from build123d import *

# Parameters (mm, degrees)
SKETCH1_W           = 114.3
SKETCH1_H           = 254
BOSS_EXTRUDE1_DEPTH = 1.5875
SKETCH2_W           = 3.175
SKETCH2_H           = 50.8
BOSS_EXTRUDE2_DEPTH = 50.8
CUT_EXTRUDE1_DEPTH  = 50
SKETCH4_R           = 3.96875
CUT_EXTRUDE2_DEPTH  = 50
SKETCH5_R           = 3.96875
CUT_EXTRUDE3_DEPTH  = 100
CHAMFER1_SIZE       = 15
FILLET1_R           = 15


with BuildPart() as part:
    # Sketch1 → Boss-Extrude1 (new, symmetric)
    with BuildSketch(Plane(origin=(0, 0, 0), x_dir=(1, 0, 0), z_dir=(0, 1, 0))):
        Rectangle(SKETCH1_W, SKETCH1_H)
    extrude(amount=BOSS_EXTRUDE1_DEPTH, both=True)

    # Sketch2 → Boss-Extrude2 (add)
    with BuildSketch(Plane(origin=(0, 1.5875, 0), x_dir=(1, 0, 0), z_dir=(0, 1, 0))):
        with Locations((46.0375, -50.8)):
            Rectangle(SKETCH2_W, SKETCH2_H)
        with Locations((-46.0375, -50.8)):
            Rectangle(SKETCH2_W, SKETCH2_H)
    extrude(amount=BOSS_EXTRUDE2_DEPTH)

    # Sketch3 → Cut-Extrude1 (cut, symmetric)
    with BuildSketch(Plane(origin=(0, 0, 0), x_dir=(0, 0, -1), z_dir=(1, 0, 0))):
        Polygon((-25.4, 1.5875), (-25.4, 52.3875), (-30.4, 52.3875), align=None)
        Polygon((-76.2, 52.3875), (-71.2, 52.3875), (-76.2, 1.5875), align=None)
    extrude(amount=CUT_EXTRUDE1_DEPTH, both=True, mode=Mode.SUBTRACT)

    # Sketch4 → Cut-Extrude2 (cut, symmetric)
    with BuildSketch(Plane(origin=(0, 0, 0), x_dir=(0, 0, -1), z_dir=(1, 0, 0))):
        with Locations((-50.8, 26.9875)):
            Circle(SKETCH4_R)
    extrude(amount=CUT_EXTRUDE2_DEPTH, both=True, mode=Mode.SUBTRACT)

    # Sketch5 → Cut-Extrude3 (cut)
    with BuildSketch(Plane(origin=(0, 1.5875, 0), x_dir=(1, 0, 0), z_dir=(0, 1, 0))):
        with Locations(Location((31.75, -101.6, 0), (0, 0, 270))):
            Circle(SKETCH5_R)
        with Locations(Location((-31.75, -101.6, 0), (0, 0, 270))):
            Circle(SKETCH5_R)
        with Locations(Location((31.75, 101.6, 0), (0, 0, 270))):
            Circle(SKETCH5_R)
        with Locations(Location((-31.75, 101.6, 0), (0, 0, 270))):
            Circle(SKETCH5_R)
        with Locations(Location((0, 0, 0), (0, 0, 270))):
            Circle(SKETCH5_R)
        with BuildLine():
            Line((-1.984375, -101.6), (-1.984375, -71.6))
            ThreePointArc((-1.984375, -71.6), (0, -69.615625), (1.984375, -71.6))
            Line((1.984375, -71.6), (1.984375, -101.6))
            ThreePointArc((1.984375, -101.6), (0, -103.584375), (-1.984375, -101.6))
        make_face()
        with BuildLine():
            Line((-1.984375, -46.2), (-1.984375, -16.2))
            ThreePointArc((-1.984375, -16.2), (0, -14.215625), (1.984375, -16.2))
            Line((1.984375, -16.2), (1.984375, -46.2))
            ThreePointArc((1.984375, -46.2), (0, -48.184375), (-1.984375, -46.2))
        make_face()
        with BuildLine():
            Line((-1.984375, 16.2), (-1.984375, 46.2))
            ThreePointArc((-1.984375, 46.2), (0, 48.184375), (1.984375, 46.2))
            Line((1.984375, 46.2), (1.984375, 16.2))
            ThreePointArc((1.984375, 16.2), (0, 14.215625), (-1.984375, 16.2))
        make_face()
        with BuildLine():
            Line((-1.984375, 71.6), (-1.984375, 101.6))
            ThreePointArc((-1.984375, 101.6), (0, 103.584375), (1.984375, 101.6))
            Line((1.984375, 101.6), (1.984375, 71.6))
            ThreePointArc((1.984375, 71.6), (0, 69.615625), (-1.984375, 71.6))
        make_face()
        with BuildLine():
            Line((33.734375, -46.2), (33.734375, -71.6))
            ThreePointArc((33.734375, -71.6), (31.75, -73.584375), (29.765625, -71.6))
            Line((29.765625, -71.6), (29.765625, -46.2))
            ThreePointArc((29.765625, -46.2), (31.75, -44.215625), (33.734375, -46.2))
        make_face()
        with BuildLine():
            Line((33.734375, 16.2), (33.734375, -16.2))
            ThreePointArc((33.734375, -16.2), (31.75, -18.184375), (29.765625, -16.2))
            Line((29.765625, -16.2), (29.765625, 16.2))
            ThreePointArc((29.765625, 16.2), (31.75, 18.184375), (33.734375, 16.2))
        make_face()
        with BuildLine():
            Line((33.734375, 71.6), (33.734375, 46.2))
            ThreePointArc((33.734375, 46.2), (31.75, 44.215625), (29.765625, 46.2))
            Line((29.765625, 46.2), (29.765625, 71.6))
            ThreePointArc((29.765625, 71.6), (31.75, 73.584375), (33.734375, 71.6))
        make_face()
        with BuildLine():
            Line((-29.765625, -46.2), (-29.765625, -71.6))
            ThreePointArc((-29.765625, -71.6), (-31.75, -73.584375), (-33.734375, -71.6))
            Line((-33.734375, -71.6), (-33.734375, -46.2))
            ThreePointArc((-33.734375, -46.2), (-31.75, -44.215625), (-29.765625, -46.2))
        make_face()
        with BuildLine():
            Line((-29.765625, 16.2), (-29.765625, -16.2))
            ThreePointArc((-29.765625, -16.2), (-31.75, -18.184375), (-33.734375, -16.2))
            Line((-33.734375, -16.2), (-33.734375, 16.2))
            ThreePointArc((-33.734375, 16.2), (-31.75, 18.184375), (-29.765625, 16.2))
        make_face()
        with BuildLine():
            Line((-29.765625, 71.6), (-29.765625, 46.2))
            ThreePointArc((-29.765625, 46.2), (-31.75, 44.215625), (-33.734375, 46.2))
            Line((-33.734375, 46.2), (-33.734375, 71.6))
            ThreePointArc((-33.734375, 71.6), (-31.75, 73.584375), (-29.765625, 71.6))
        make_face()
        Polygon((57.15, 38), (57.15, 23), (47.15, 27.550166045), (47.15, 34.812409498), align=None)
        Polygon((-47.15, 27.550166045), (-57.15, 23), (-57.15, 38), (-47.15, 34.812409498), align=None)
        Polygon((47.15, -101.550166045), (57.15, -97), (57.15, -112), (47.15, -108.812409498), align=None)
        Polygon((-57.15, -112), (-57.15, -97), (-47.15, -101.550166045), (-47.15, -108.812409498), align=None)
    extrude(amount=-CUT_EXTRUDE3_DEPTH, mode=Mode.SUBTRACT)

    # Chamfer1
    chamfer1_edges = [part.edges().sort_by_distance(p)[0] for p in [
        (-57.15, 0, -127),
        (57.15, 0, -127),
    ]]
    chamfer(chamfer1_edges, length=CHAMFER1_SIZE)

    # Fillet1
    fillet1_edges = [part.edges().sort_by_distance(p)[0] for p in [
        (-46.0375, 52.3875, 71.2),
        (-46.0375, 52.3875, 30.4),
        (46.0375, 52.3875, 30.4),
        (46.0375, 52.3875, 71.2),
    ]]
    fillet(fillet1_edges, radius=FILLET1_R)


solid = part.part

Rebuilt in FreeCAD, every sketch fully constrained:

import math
import FreeCAD as App
import Part
import Sketcher

V = App.Vector
Q = App.Units.Quantity


def edges_at(feature, points):
    """Names of the edges that pass closest to the given points."""
    edges = feature.Shape.Edges
    near = lambda p: min(range(len(edges)), key=lambda i: edges[i].distToShape(Part.Vertex(*p))[0])
    return sorted({f"Edge{near(p) + 1}" for p in points})


def add_polygon(sketch, points):
    """Adds a closed chain of lines whose ends are joined by coincident constraints."""
    first, n = sketch.GeometryCount, len(points)
    for a, b in zip(points, points[1:] + points[:1]):
        sketch.addGeometry(Part.LineSegment(App.Vector(*a, 0), App.Vector(*b, 0)), False)
    for i in range(n):
        sketch.addConstraint(Sketcher.Constraint("Coincident", first + i, 2, first + (i + 1) % n, 1))

doc = App.newDocument("Part")
body = doc.addObject("PartDesign::Body", "Body")

sketch1 = body.newObject("Sketcher::SketchObject", "Sketch")
sketch1.AttachmentSupport = (doc.getObject("XZ_Plane"), [""])
sketch1.MapMode = "FlatFace"
add_polygon(sketch1, [(-57, -127), (-57, 127), (57, 127), (57, -127)])
sketch1.addConstraint([
    Sketcher.Constraint("Vertical", 0),
    Sketcher.Constraint("Horizontal", 1),
    Sketcher.Constraint("Vertical", 2),
    Sketcher.Constraint("Horizontal", 3),
    Sketcher.Constraint("Symmetric", 0, 2, 2, 2, -1, 1),
    Sketcher.Constraint("DistanceY", 0, 1, 0, 2, Q("10 in")),
    Sketcher.Constraint("DistanceX", 1, 1, 1, 2, Q("4.5 in")),
])
pad1 = body.newObject("PartDesign::Pad", "Pad")
pad1.Profile = sketch1
pad1.Length = Q("0.125 in")
pad1.Midplane = True

sketch2 = body.newObject("Sketcher::SketchObject", "Sketch001")
sketch2.AttachmentSupport = (doc.getObject("XZ_Plane"), [""])
sketch2.MapMode = "FlatFace"
sketch2.AttachmentOffset = App.Placement(V(0, 0, -0.0625 * 25.4), App.Rotation())
add_polygon(sketch2, [(44.5, 25.4), (44.5, 76.2), (47.6, 76.2), (47.6, 25.4)])
add_polygon(sketch2, [(-47.6, 25.4), (-47.6, 76.2), (-44.5, 76.2), (-44.5, 25.4)])
sketch2.addConstraint([
    Sketcher.Constraint("Vertical", 0),
    Sketcher.Constraint("Horizontal", 1),
    Sketcher.Constraint("Vertical", 2),
    Sketcher.Constraint("Horizontal", 3),
    Sketcher.Constraint("Vertical", 4),
    Sketcher.Constraint("Horizontal", 5),
    Sketcher.Constraint("Vertical", 6),
    Sketcher.Constraint("Horizontal", 7),
    Sketcher.Constraint("Symmetric", 1, 2, 4, 2, -2),
    Sketcher.Constraint("Symmetric", 3, 2, 6, 2, -2),
    Sketcher.Constraint("DistanceY", 0, 1, 0, 2, Q("2 in")),
    Sketcher.Constraint("DistanceY", -1, 1, 0, 2, Q("3 in")),
    Sketcher.Constraint("DistanceX", 5, 2, 0, 2, Q("3.5 in")),
    Sketcher.Constraint("DistanceX", 1, 1, 1, 2, Q("0.125 in")),
])
pad2 = body.newObject("PartDesign::Pad", "Pad001")
pad2.Profile = sketch2
pad2.Length = Q("2 in")
pad2.Reversed = True

sketch3 = body.newObject("Sketcher::SketchObject", "Sketch002")
sketch3.AttachmentSupport = (doc.getObject("YZ_Plane"), [""])
sketch3.MapMode = "FlatFace"
add_polygon(sketch3, [(2, 25), (52, 25), (52, 30)])
add_polygon(sketch3, [(52, 71), (52, 76), (2, 76)])
sketch3.addConstraint([
    Sketcher.Constraint("Horizontal", 0),
    Sketcher.Constraint("Vertical", 1),
    Sketcher.Constraint("Vertical", 3),
    Sketcher.Constraint("Horizontal", 4),
    Sketcher.Constraint("Vertical", 1, 2, 3, 2),
    Sketcher.Constraint("Vertical", 2, 2, 4, 2),
    Sketcher.Constraint("Equal", 1, 3),
    Sketcher.Constraint("DistanceX", 0, 1, 0, 2, Q("2 in")),
    Sketcher.Constraint("DistanceY", -1, 1, 0, 2, Q("1 in")),
    Sketcher.Constraint("DistanceY", -1, 1, 3, 2, Q("3 in")),
    Sketcher.Constraint("DistanceX", -1, 1, 0, 2, Q("2.0625 in")),
    Sketcher.Constraint("DistanceY", 1, 1, 1, 2, Q("5 mm")),
])
pocket1 = body.newObject("PartDesign::Pocket", "Pocket")
pocket1.Profile = sketch3
pocket1.Length = 100
pocket1.Midplane = True

sketch4 = body.newObject("Sketcher::SketchObject", "Sketch003")
sketch4.AttachmentSupport = (doc.getObject("YZ_Plane"), [""])
sketch4.MapMode = "FlatFace"
sketch4.addGeometry(Part.Circle(V(27, 50.8, 0), V(0, 0, 1), 4), False)
sketch4.addConstraint([
    Sketcher.Constraint("Diameter", 0, Q("0.3125 in")),
    Sketcher.Constraint("DistanceY", -1, 1, 0, 3, Q("2 in")),
    Sketcher.Constraint("DistanceX", -1, 1, 0, 3, Q("1.0625 in")),
])
pocket2 = body.newObject("PartDesign::Pocket", "Pocket001")
pocket2.Profile = sketch4
pocket2.Length = 100
pocket2.Midplane = True

sketch5 = body.newObject("Sketcher::SketchObject", "Sketch004")
sketch5.AttachmentSupport = (doc.getObject("XZ_Plane"), [""])
sketch5.MapMode = "FlatFace"
sketch5.AttachmentOffset = App.Placement(V(0, 0, -0.0625 * 25.4), App.Rotation())
sketch5.addGeometry(Part.Circle(V(31.8, 101.6, 0), V(0, 0, 1), 4), False)
sketch5.addGeometry(Part.Circle(V(-31.8, 101.6, 0), V(0, 0, 1), 4), False)
sketch5.addGeometry(Part.Circle(V(31.8, -101.6, 0), V(0, 0, 1), 4), False)
sketch5.addGeometry(Part.Circle(V(-31.8, -101.6, 0), V(0, 0, 1), 4), False)
sketch5.addGeometry(Part.Circle(V(0, 0, 0), V(0, 0, 1), 4), False)
sketch5.addGeometry(Part.LineSegment(V(-2, 71.6, 0), V(-2, 101.6, 0)), False)
sketch5.addGeometry(Part.ArcOfCircle(Part.Circle(V(0, 101.6, 0), V(0, 0, 1), 2), math.radians(0), math.radians(180)), False)
sketch5.addGeometry(Part.LineSegment(V(2, 101.6, 0), V(2, 71.6, 0)), False)
sketch5.addGeometry(Part.ArcOfCircle(Part.Circle(V(0, 71.6, 0), V(0, 0, 1), 2), math.radians(180), math.radians(360)), False)
sketch5.addGeometry(Part.LineSegment(V(-2, 16.2, 0), V(-2, 46.2, 0)), False)
sketch5.addGeometry(Part.ArcOfCircle(Part.Circle(V(0, 46.2, 0), V(0, 0, 1), 2), math.radians(0), math.radians(180)), False)
sketch5.addGeometry(Part.LineSegment(V(2, 46.2, 0), V(2, 16.2, 0)), False)
sketch5.addGeometry(Part.ArcOfCircle(Part.Circle(V(0, 16.2, 0), V(0, 0, 1), 2), math.radians(180), math.radians(360)), False)
sketch5.addGeometry(Part.LineSegment(V(-2, -46.2, 0), V(-2, -16.2, 0)), False)
sketch5.addGeometry(Part.ArcOfCircle(Part.Circle(V(0, -16.2, 0), V(0, 0, 1), 2), math.radians(0), math.radians(180)), False)
sketch5.addGeometry(Part.LineSegment(V(2, -16.2, 0), V(2, -46.2, 0)), False)
sketch5.addGeometry(Part.ArcOfCircle(Part.Circle(V(0, -46.2, 0), V(0, 0, 1), 2), math.radians(180), math.radians(360)), False)
sketch5.addGeometry(Part.LineSegment(V(-2, -101.6, 0), V(-2, -71.6, 0)), False)
sketch5.addGeometry(Part.ArcOfCircle(Part.Circle(V(0, -71.6, 0), V(0, 0, 1), 2), math.radians(0), math.radians(180)), False)
sketch5.addGeometry(Part.LineSegment(V(2, -71.6, 0), V(2, -101.6, 0)), False)
sketch5.addGeometry(Part.ArcOfCircle(Part.Circle(V(0, -101.6, 0), V(0, 0, 1), 2), math.radians(180), math.radians(360)), False)
sketch5.addGeometry(Part.LineSegment(V(33.7, 71.6, 0), V(33.7, 46.2, 0)), False)
sketch5.addGeometry(Part.ArcOfCircle(Part.Circle(V(31.8, 46.2, 0), V(0, 0, 1), 2), math.radians(180), math.radians(360)), False)
sketch5.addGeometry(Part.LineSegment(V(29.8, 46.2, 0), V(29.8, 71.6, 0)), False)
sketch5.addGeometry(Part.ArcOfCircle(Part.Circle(V(31.8, 71.6, 0), V(0, 0, 1), 2), math.radians(0), math.radians(180)), False)
sketch5.addGeometry(Part.LineSegment(V(33.7, 16.2, 0), V(33.7, -16.2, 0)), False)
sketch5.addGeometry(Part.ArcOfCircle(Part.Circle(V(31.8, -16.2, 0), V(0, 0, 1), 2), math.radians(180), math.radians(360)), False)
sketch5.addGeometry(Part.LineSegment(V(29.8, -16.2, 0), V(29.8, 16.2, 0)), False)
sketch5.addGeometry(Part.ArcOfCircle(Part.Circle(V(31.8, 16.2, 0), V(0, 0, 1), 2), math.radians(0), math.radians(180)), False)
sketch5.addGeometry(Part.LineSegment(V(33.7, -46.2, 0), V(33.7, -71.6, 0)), False)
sketch5.addGeometry(Part.ArcOfCircle(Part.Circle(V(31.8, -71.6, 0), V(0, 0, 1), 2), math.radians(180), math.radians(360)), False)
sketch5.addGeometry(Part.LineSegment(V(29.8, -71.6, 0), V(29.8, -46.2, 0)), False)
sketch5.addGeometry(Part.ArcOfCircle(Part.Circle(V(31.8, -46.2, 0), V(0, 0, 1), 2), math.radians(0), math.radians(180)), False)
sketch5.addGeometry(Part.LineSegment(V(-29.8, 71.6, 0), V(-29.8, 46.2, 0)), False)
sketch5.addGeometry(Part.ArcOfCircle(Part.Circle(V(-31.8, 46.2, 0), V(0, 0, 1), 2), math.radians(180), math.radians(360)), False)
sketch5.addGeometry(Part.LineSegment(V(-33.7, 46.2, 0), V(-33.7, 71.6, 0)), False)
sketch5.addGeometry(Part.ArcOfCircle(Part.Circle(V(-31.8, 71.6, 0), V(0, 0, 1), 2), math.radians(0), math.radians(180)), False)
sketch5.addGeometry(Part.LineSegment(V(-29.8, 16.2, 0), V(-29.8, -16.2, 0)), False)
sketch5.addGeometry(Part.ArcOfCircle(Part.Circle(V(-31.8, -16.2, 0), V(0, 0, 1), 2), math.radians(180), math.radians(360)), False)
sketch5.addGeometry(Part.LineSegment(V(-33.7, -16.2, 0), V(-33.7, 16.2, 0)), False)
sketch5.addGeometry(Part.ArcOfCircle(Part.Circle(V(-31.8, 16.2, 0), V(0, 0, 1), 2), math.radians(0), math.radians(180)), False)
sketch5.addGeometry(Part.LineSegment(V(-29.8, -46.2, 0), V(-29.8, -71.6, 0)), False)
sketch5.addGeometry(Part.ArcOfCircle(Part.Circle(V(-31.8, -71.6, 0), V(0, 0, 1), 2), math.radians(180), math.radians(360)), False)
sketch5.addGeometry(Part.LineSegment(V(-33.7, -71.6, 0), V(-33.7, -46.2, 0)), False)
sketch5.addGeometry(Part.ArcOfCircle(Part.Circle(V(-31.8, -46.2, 0), V(0, 0, 1), 2), math.radians(0), math.radians(180)), False)
add_polygon(sketch5, [(57.1, -23), (57.1, -38), (47.1, -34.8), (47.1, -27.6)])
add_polygon(sketch5, [(-57.1, -23), (-47.1, -27.6), (-47.1, -34.8), (-57.1, -38)])
add_polygon(sketch5, [(57.1, 97), (47.1, 101.6), (47.1, 108.8), (57.1, 112)])
add_polygon(sketch5, [(-57.1, 97), (-57.1, 112), (-47.1, 108.8), (-47.1, 101.6)])
sketch5.addConstraint([
    Sketcher.Constraint("Tangent", 5, 2, 6, 2),
    Sketcher.Constraint("Tangent", 6, 1, 7, 1),
    Sketcher.Constraint("Tangent", 7, 2, 8, 2),
    Sketcher.Constraint("Tangent", 8, 1, 5, 1),
    Sketcher.Constraint("Tangent", 9, 2, 10, 2),
    Sketcher.Constraint("Tangent", 10, 1, 11, 1),
    Sketcher.Constraint("Tangent", 11, 2, 12, 2),
    Sketcher.Constraint("Tangent", 12, 1, 9, 1),
    Sketcher.Constraint("Tangent", 13, 2, 14, 2),
    Sketcher.Constraint("Tangent", 14, 1, 15, 1),
    Sketcher.Constraint("Tangent", 15, 2, 16, 2),
    Sketcher.Constraint("Tangent", 16, 1, 13, 1),
    Sketcher.Constraint("Tangent", 17, 2, 18, 2),
    Sketcher.Constraint("Tangent", 18, 1, 19, 1),
    Sketcher.Constraint("Tangent", 19, 2, 20, 2),
    Sketcher.Constraint("Tangent", 20, 1, 17, 1),
    Sketcher.Constraint("Tangent", 21, 2, 22, 2),
    Sketcher.Constraint("Tangent", 22, 1, 23, 1),
    Sketcher.Constraint("Tangent", 23, 2, 24, 2),
    Sketcher.Constraint("Tangent", 24, 1, 21, 1),
    Sketcher.Constraint("Tangent", 25, 2, 26, 2),
    Sketcher.Constraint("Tangent", 26, 1, 27, 1),
    Sketcher.Constraint("Tangent", 27, 2, 28, 2),
    Sketcher.Constraint("Tangent", 28, 1, 25, 1),
    Sketcher.Constraint("Tangent", 29, 2, 30, 2),
    Sketcher.Constraint("Tangent", 30, 1, 31, 1),
    Sketcher.Constraint("Tangent", 31, 2, 32, 2),
    Sketcher.Constraint("Tangent", 32, 1, 29, 1),
    Sketcher.Constraint("Tangent", 33, 2, 34, 2),
    Sketcher.Constraint("Tangent", 34, 1, 35, 1),
    Sketcher.Constraint("Tangent", 35, 2, 36, 2),
    Sketcher.Constraint("Tangent", 36, 1, 33, 1),
    Sketcher.Constraint("Tangent", 37, 2, 38, 2),
    Sketcher.Constraint("Tangent", 38, 1, 39, 1),
    Sketcher.Constraint("Tangent", 39, 2, 40, 2),
    Sketcher.Constraint("Tangent", 40, 1, 37, 1),
    Sketcher.Constraint("Tangent", 41, 2, 42, 2),
    Sketcher.Constraint("Tangent", 42, 1, 43, 1),
    Sketcher.Constraint("Tangent", 43, 2, 44, 2),
    Sketcher.Constraint("Tangent", 44, 1, 41, 1),
    Sketcher.Constraint("Vertical", 5),
    Sketcher.Constraint("Vertical", 7),
    Sketcher.Constraint("Vertical", 9),
    Sketcher.Constraint("Vertical", 11),
    Sketcher.Constraint("Vertical", 13),
    Sketcher.Constraint("Vertical", 15),
    Sketcher.Constraint("Vertical", 17),
    Sketcher.Constraint("Vertical", 19),
    Sketcher.Constraint("Vertical", 21),
    Sketcher.Constraint("Vertical", 23),
    Sketcher.Constraint("Vertical", 25),
    Sketcher.Constraint("Vertical", 27),
    Sketcher.Constraint("Vertical", 29),
    Sketcher.Constraint("Vertical", 31),
    Sketcher.Constraint("Vertical", 33),
    Sketcher.Constraint("Vertical", 35),
    Sketcher.Constraint("Vertical", 37),
    Sketcher.Constraint("Vertical", 39),
    Sketcher.Constraint("Vertical", 41),
    Sketcher.Constraint("Vertical", 43),
    Sketcher.Constraint("Vertical", 45),
    Sketcher.Constraint("Vertical", 47),
    Sketcher.Constraint("Vertical", 50),
    Sketcher.Constraint("Vertical", 52),
    Sketcher.Constraint("Vertical", 54),
    Sketcher.Constraint("Vertical", 56),
    Sketcher.Constraint("Vertical", 57),
    Sketcher.Constraint("Vertical", 59),
    Sketcher.Constraint("Coincident", 4, 3, -1, 1),
    Sketcher.Constraint("Equal", 0, 1),
    Sketcher.Constraint("Equal", 1, 2),
    Sketcher.Constraint("Equal", 2, 3),
    Sketcher.Constraint("Equal", 3, 4),
    Sketcher.Constraint("Equal", 8, 10),
    Sketcher.Constraint("Equal", 12, 14),
    Sketcher.Constraint("Equal", 16, 18),
    Sketcher.Constraint("Equal", 20, 22),
    Sketcher.Constraint("Equal", 24, 26),
    Sketcher.Constraint("Equal", 28, 30),
    Sketcher.Constraint("Equal", 32, 34),
    Sketcher.Constraint("Equal", 36, 38),
    Sketcher.Constraint("Equal", 40, 42),
    Sketcher.Constraint("Symmetric", 1, 3, 2, 3, -1, 1),
    Sketcher.Constraint("Symmetric", 0, 3, 3, 3, -1, 1),
    Sketcher.Constraint("Symmetric", 12, 3, 14, 3, -1, 1),
    Sketcher.Constraint("Symmetric", 8, 3, 18, 3, -1, 1),
    Sketcher.Constraint("Symmetric", 32, 3, 34, 3, -1, 1),
    Sketcher.Constraint("Symmetric", 28, 3, 38, 3, -1, 1),
    Sketcher.Constraint("Symmetric", 24, 3, 42, 3, -1, 1),
    Sketcher.Constraint("Symmetric", 0, 3, 1, 3, -2),
    Sketcher.Constraint("Symmetric", 22, 3, 34, 3, -2),
    Sketcher.Constraint("Symmetric", 47, 2, 49, 2, -2),
    Sketcher.Constraint("Symmetric", 45, 2, 51, 2, -2),
    Sketcher.Constraint("Symmetric", 55, 2, 57, 2, -2),
    Sketcher.Constraint("Symmetric", 54, 2, 58, 2, -2),
    Sketcher.Constraint("Symmetric", 10, 3, 16, 3, -1),
    Sketcher.Constraint("Symmetric", 6, 3, 20, 3, -1),
    Sketcher.Constraint("Parallel", 49, 53),
    Sketcher.Constraint("Parallel", 51, 55),
    Sketcher.Constraint("Parallel", 46, 58),
    Sketcher.Constraint("Parallel", 48, 60),
    Sketcher.Constraint("Horizontal", 1, 3, 6, 3),
    Sketcher.Constraint("Horizontal", 10, 3, 22, 3),
    Sketcher.Constraint("Horizontal", 8, 3, 24, 3),
    Sketcher.Constraint("Horizontal", 14, 3, 26, 3),
    Sketcher.Constraint("Horizontal", 12, 3, 28, 3),
    Sketcher.Constraint("Horizontal", 18, 3, 30, 3),
    Sketcher.Constraint("Horizontal", 24, 3, 36, 3),
    Sketcher.Constraint("Horizontal", 28, 3, 40, 3),
    Sketcher.Constraint("Horizontal", 32, 3, 44, 3),
    Sketcher.Constraint("Horizontal", 48, 2, 52, 2),
    Sketcher.Constraint("Horizontal", 53, 2, 59, 2),
    Sketcher.Constraint("Vertical", 2, 3, 22, 3),
    Sketcher.Constraint("Vertical", 24, 3, 26, 3),
    Sketcher.Constraint("Vertical", 47, 2, 53, 2),
    Sketcher.Constraint("Vertical", 48, 2, 55, 2),
    Sketcher.Constraint("Equal", 7, 9),
    Sketcher.Constraint("Equal", 50, 54),
    Sketcher.Constraint("DistanceY", 21, 2, 21, 1, Q("1 in")),
    Sketcher.Constraint("Diameter", 0, Q("0.3125 in")),
    Sketcher.Constraint("DistanceY", -1, 1, 0, 3, Q("4 in")),
    Sketcher.Constraint("Radius", 6, Q("0.078125 in")),
    Sketcher.Constraint("DistanceX", -1, 1, 0, 3, Q("1.25 in")),
    Sketcher.Constraint("DistanceX", -1, 1, 45, 2, Q("2.25 in")),
    Sketcher.Constraint("DistanceY", 5, 1, 5, 2, Q("30 mm")),
    Sketcher.Constraint("DistanceY", 45, 2, 45, 1, Q("15 mm")),
    Sketcher.Constraint("DistanceY", 45, 2, -1, 1, Q("38 mm")),
    Sketcher.Constraint("DistanceX", -1, 1, 46, 2, Q("47.15 mm")),
    Sketcher.Constraint("DistanceY", -1, 1, 55, 2, Q("112 mm")),
    Sketcher.Constraint("Distance", 46, Q("10.495748 mm")),
    Sketcher.Constraint("DistanceY", 47, 1, 47, 2, Q("7.262243 mm")),
])
pocket3 = body.newObject("PartDesign::Pocket", "Pocket002")
pocket3.Profile = sketch5
pocket3.Length = 100
pocket3.Reversed = True
doc.recompute()

chamfer = body.newObject("PartDesign::Chamfer", "Chamfer")
chamfer.Base = (pocket3, edges_at(pocket3, [(-57.15, 0, -127), (57.15, 0, -127)]))
chamfer.Size = 15
doc.recompute()

fillet = body.newObject("PartDesign::Fillet", "Fillet")
fillet.Base = (chamfer, edges_at(chamfer, [
    (-46.038, 52.388, 71.2),
    (-46.038, 52.388, 30.4),
    (46.038, 52.388, 30.4),
    (46.038, 52.388, 71.2),
]))
fillet.Radius = 15

doc.recompute()
